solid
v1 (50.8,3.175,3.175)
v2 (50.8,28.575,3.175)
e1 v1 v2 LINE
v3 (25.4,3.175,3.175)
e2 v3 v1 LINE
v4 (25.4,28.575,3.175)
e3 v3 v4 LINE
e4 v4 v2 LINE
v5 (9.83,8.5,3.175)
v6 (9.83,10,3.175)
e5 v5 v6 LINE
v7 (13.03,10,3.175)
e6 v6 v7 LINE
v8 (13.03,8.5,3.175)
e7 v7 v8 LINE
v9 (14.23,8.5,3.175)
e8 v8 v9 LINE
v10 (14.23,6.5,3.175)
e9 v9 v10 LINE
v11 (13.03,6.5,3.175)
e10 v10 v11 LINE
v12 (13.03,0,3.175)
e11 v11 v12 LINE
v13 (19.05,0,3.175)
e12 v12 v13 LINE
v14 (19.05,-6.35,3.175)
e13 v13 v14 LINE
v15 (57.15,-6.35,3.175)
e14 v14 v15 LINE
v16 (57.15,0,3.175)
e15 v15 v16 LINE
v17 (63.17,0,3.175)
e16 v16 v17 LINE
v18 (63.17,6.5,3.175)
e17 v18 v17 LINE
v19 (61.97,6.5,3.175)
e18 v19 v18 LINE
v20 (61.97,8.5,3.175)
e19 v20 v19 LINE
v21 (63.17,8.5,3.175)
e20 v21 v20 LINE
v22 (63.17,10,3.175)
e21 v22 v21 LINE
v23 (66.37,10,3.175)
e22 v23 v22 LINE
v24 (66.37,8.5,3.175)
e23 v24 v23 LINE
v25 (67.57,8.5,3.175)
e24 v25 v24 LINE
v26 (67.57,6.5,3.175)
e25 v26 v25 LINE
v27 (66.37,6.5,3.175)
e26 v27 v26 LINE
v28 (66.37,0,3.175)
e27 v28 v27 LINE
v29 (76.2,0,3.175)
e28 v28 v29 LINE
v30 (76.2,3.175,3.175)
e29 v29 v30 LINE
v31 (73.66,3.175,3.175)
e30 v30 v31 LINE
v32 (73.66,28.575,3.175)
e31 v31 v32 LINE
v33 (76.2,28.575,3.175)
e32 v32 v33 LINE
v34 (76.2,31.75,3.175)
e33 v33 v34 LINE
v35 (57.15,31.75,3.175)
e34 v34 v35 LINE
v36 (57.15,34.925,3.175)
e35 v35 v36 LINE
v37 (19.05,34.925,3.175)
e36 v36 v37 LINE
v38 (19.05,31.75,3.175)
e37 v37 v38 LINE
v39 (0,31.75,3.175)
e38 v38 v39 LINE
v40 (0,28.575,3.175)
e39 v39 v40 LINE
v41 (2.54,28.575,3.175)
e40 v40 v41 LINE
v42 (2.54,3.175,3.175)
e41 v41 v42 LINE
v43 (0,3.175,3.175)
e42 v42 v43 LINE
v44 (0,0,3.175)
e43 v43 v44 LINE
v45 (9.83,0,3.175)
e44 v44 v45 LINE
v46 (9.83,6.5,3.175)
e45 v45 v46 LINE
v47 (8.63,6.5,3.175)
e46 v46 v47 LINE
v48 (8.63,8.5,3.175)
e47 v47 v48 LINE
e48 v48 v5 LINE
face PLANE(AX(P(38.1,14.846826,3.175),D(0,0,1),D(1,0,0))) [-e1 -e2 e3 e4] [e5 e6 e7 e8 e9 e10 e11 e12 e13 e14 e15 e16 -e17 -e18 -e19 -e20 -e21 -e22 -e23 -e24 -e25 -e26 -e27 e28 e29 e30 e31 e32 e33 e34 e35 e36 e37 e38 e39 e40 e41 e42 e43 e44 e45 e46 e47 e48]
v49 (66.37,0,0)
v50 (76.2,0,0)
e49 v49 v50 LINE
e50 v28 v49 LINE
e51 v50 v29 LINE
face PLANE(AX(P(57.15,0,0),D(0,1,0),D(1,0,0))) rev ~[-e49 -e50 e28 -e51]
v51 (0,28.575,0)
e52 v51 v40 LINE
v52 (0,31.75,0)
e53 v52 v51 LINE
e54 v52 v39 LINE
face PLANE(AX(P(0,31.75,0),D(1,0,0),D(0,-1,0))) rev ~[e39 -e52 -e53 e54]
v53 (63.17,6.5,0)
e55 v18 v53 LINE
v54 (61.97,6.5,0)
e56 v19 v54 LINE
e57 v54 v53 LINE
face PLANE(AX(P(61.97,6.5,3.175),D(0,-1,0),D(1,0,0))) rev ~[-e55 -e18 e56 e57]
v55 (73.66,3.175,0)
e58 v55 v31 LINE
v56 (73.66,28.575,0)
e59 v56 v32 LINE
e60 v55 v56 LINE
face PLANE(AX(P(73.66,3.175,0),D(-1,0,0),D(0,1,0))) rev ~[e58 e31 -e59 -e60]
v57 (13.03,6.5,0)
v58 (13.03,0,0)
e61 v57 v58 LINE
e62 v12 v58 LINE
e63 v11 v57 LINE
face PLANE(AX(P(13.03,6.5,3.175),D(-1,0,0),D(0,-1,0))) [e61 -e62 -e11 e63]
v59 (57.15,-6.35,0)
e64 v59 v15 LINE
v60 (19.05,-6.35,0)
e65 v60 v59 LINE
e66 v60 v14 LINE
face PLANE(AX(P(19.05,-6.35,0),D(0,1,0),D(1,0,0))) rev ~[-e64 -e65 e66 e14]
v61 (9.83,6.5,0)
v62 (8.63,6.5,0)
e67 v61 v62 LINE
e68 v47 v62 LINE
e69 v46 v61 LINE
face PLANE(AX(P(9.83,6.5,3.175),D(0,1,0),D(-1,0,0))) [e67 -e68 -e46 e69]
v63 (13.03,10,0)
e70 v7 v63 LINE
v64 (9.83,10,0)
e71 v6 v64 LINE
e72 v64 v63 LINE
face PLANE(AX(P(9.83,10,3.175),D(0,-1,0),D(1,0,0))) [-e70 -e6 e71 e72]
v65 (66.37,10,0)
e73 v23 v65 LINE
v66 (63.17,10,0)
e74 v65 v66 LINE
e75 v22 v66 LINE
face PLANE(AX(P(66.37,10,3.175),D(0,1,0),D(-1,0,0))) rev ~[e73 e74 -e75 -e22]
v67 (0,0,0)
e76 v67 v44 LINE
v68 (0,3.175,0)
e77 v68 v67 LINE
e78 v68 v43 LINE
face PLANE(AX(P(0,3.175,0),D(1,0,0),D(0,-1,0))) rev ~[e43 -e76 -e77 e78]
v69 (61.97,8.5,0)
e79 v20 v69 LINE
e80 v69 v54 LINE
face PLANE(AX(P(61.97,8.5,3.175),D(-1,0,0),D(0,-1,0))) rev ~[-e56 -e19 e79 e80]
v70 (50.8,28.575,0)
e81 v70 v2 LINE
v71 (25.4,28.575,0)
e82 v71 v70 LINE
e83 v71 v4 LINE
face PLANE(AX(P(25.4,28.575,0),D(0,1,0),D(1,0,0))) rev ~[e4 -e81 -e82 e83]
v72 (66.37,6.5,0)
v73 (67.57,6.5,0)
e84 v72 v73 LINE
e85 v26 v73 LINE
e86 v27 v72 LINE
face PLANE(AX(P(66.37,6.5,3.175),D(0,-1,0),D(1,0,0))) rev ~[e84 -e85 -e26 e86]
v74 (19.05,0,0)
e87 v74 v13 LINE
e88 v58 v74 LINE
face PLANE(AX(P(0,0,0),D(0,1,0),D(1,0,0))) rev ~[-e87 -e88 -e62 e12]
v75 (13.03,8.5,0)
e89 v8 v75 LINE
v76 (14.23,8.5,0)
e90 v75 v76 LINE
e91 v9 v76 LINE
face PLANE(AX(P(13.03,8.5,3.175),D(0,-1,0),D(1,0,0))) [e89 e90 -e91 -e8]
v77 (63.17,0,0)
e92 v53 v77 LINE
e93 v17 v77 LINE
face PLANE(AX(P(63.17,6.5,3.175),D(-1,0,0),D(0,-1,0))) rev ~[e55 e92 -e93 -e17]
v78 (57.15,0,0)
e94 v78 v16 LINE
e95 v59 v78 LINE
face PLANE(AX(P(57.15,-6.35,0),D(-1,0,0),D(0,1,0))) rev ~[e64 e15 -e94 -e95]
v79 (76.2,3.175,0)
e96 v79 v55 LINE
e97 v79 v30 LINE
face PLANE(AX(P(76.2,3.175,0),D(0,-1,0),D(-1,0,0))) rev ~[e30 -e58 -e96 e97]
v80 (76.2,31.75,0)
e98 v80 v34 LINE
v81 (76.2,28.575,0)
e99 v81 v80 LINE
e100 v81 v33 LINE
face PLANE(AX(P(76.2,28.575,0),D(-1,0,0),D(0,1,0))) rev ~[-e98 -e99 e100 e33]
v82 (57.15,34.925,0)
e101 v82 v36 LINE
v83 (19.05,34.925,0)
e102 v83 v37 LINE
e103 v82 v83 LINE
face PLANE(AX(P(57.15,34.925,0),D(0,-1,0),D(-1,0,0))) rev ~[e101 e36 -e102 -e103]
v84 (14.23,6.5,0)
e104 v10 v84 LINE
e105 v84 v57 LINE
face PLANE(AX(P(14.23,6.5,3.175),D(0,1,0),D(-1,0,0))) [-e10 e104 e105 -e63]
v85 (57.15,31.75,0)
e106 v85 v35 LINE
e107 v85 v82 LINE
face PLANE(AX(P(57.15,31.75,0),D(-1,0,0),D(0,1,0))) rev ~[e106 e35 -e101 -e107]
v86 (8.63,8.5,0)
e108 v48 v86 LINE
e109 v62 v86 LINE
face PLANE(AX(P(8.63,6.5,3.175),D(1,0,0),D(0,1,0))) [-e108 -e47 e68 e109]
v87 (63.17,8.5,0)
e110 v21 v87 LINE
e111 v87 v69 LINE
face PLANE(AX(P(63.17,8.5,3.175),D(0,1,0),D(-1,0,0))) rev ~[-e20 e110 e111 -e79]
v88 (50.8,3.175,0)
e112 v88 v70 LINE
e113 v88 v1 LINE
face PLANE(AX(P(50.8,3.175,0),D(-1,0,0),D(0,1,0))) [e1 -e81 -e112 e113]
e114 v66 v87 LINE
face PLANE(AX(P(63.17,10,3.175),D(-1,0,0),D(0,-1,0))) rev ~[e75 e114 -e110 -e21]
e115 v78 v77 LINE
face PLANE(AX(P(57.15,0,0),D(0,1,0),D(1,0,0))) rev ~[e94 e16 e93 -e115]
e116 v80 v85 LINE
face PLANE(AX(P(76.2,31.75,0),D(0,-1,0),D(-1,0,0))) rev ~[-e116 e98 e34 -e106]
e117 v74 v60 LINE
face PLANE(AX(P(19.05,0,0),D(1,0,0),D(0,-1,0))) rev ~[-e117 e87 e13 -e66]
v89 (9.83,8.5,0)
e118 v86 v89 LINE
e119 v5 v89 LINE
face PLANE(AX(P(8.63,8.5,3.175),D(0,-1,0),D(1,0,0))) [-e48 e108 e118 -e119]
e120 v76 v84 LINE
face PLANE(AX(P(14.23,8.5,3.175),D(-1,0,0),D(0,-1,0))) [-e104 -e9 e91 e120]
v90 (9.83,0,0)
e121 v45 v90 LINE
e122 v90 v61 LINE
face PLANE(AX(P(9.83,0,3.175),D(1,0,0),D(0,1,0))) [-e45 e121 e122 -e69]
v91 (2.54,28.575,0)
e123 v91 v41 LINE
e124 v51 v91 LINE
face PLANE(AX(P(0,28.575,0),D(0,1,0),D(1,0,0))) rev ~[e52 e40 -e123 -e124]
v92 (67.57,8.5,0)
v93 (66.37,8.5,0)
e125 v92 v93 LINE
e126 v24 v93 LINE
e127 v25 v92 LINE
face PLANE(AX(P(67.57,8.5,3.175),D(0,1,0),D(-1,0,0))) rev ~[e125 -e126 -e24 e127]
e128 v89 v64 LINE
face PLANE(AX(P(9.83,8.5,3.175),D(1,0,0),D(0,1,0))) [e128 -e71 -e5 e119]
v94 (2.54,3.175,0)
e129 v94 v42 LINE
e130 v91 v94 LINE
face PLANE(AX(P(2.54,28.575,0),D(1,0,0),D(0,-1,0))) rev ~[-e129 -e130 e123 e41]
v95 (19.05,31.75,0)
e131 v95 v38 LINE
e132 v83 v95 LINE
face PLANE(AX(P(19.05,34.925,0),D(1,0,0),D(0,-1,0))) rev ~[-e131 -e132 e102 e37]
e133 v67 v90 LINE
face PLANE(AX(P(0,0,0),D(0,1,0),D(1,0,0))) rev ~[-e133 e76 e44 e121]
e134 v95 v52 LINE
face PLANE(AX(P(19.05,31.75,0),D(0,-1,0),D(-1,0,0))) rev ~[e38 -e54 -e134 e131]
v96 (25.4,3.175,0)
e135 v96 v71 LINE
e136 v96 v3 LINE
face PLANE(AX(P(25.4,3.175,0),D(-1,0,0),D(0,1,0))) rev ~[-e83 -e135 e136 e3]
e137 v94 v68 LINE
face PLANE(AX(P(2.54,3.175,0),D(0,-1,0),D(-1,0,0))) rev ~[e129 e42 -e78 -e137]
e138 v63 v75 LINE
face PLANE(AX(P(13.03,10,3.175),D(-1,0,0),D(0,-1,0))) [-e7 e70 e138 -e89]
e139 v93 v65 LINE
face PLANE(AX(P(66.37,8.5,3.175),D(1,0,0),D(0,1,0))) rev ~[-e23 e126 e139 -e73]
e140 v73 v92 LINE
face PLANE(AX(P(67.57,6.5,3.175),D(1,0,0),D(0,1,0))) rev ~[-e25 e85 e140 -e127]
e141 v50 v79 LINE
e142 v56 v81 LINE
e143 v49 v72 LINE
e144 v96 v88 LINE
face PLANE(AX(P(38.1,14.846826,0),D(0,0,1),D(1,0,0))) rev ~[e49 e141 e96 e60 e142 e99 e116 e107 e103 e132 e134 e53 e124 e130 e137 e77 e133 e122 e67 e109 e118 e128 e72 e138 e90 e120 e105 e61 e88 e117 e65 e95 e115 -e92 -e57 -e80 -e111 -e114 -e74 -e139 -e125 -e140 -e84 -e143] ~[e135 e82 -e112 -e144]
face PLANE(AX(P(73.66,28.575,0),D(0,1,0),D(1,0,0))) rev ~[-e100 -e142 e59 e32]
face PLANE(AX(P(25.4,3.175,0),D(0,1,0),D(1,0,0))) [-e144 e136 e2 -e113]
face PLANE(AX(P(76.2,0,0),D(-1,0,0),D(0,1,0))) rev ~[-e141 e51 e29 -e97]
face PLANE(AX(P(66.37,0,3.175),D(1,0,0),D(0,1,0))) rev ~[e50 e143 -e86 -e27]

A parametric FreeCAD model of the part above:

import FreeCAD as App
import Part
import Sketcher
from FreeCAD import Vector
Q = App.Units.Quantity


def add_polygon(sketch, points):
    """Adds a closed chain of lines whose ends are joined by coincident constraints."""
    first, n = sketch.GeometryCount, len(points)
    for a, b in zip(points, points[1:] + points[:1]):
        sketch.addGeometry(Part.LineSegment(App.Vector(*a, 0), App.Vector(*b, 0)), False)
    for i in range(n):
        sketch.addConstraint(Sketcher.Constraint("Coincident", first + i, 2, first + (i + 1) % n, 1))

doc = App.newDocument("Part")
body = doc.addObject("PartDesign::Body", "Body")

sketch1 = doc.addObject("Sketcher::SketchObject", "Sketch")
body.addObject(sketch1)
sketch1.AttachmentSupport = (doc.XY_Plane, [""])
sketch1.MapMode = "FlatFace"
add_polygon(sketch1, [(0, 0), (19.1, 0), (19.1, -6.3), (57.1, -6.3), (57.1, 0), (76.2, 0), (76.2, 3.2), (73.7, 3.2), (73.7, 28.6), (76.2, 28.6), (76.2, 31.8), (57.1, 31.8), (57.1, 34.9), (19.1, 34.9), (19.1, 31.8), (0, 31.8), (0, 28.6), (2.5, 28.6), (2.5, 3.2), (0, 3.2)])
add_polygon(sketch1, [(50.8, 3.2), (25.4, 3.2), (25.4, 28.6), (50.8, 28.6)])
sketch1.addConstraint(Sketcher.Constraint("Horizontal", 0))
sketch1.addConstraint(Sketcher.Constraint("Vertical", 1))
sketch1.addConstraint(Sketcher.Constraint("Horizontal", 2))
sketch1.addConstraint(Sketcher.Constraint("Vertical", 3))
sketch1.addConstraint(Sketcher.Constraint("Horizontal", 4))
sketch1.addConstraint(Sketcher.Constraint("Vertical", 5))
sketch1.addConstraint(Sketcher.Constraint("Horizontal", 6))
sketch1.addConstraint(Sketcher.Constraint("Vertical", 7))
sketch1.addConstraint(Sketcher.Constraint("Horizontal", 8))
sketch1.addConstraint(Sketcher.Constraint("Vertical", 9))
sketch1.addConstraint(Sketcher.Constraint("Horizontal", 10))
sketch1.addConstraint(Sketcher.Constraint("Vertical", 11))
sketch1.addConstraint(Sketcher.Constraint("Horizontal", 12))
sketch1.addConstraint(Sketcher.Constraint("Vertical", 13))
sketch1.addConstraint(Sketcher.Constraint("Horizontal", 14))
sketch1.addConstraint(Sketcher.Constraint("Vertical", 15))
sketch1.addConstraint(Sketcher.Constraint("Horizontal", 16))
sketch1.addConstraint(Sketcher.Constraint("Vertical", 17))
sketch1.addConstraint(Sketcher.Constraint("Horizontal", 18))
sketch1.addConstraint(Sketcher.Constraint("Vertical", 19))
sketch1.addConstraint(Sketcher.Constraint("Horizontal", 20))
sketch1.addConstraint(Sketcher.Constraint("Vertical", 21))
sketch1.addConstraint(Sketcher.Constraint("Horizontal", 22))
sketch1.addConstraint(Sketcher.Constraint("Vertical", 23))
sketch1.addConstraint(Sketcher.Constraint("Coincident", 19, 2, -1, 1))
sketch1.addConstraint(Sketcher.Constraint("PointOnObject", 3, 2, -1))
sketch1.addConstraint(Sketcher.Constraint("PointOnObject", 14, 2, -2))
sketch1.addConstraint(Sketcher.Constraint("Horizontal", 10, 2, 13, 2))
sketch1.addConstraint(Sketcher.Constraint("Horizontal", 8, 2, 15, 2))
sketch1.addConstraint(Sketcher.Constraint("Horizontal", 6, 2, 17, 2))
sketch1.addConstraint(Sketcher.Constraint("Horizontal", 18, 2, 20, 2))
sketch1.addConstraint(Sketcher.Constraint("Horizontal", 16, 2, 21, 2))
sketch1.addConstraint(Sketcher.Constraint("Vertical", 5, 2, 8, 2))
sketch1.addConstraint(Sketcher.Constraint("Vertical", 3, 2, 10, 2))
sketch1.addConstraint(Sketcher.Constraint("Vertical", 1, 2, 12, 2))
sketch1.addConstraint(Sketcher.Constraint("Equal", 0, 4))
sketch1.addConstraint(Sketcher.Constraint("Equal", 8, 16))
sketch1.addConstraint(Sketcher.Constraint("Equal", 22, 7))
sketch1.addConstraint(Sketcher.Constraint("Equal", 5, 9))
sketch1.addConstraint(Sketcher.Constraint("Equal", 9, 11))
sketch1.addConstraint(Sketcher.Constraint("DistanceX", 20, 2, 20, 1, Q("1 in")))
sketch1.addConstraint(Sketcher.Constraint("DistanceX", 2, 1, 2, 2, Q("1.5 in")))
sketch1.addConstraint(Sketcher.Constraint("DistanceX", 6, 2, 6, 1, Q("0.1 in")))
sketch1.addConstraint(Sketcher.Constraint("DistanceX", -1, 1, 4, 2, Q("3 in")))
sketch1.addConstraint(Sketcher.Constraint("DistanceX", -1, 1, 20, 2, Q("1 in")))
sketch1.addConstraint(Sketcher.Constraint("DistanceY", 1, 2, 1, 1, Q("0.25 in")))
sketch1.addConstraint(Sketcher.Constraint("DistanceY", 1, 2, 13, 2, Q("1.5 in")))
pad1 = doc.addObject("PartDesign::Pad", "Pad")
body.addObject(pad1)
pad1.Profile = sketch1
pad1.Length = Q("0.125 in")

sketch2 = doc.addObject("Sketcher::SketchObject", "Sketch001")
body.addObject(sketch2)
sketch2.AttachmentSupport = (doc.XY_Plane, [""])
sketch2.MapMode = "FlatFace"
sketch2.AttachmentOffset = App.Placement(Vector(0, 0, 0.125 * 25.4), App.Rotation())
add_polygon(sketch2, [(9.8, 0), (13, 0), (13, 6.5), (14.2, 6.5), (14.2, 8.5), (13, 8.5), (13, 10), (9.8, 10), (9.8, 8.5), (8.6, 8.5), (8.6, 6.5), (9.8, 6.5)])
add_polygon(sketch2, [(66.4, 8.5), (66.4, 10), (63.2, 10), (63.2, 8.5), (62, 8.5), (62, 6.5), (63.2, 6.5), (63.2, 0), (66.4, 0), (66.4, 6.5), (67.6, 6.5), (67.6, 8.5)])
sketch2.addConstraint(Sketcher.Constraint("Horizontal", 0))
sketch2.addConstraint(Sketcher.Constraint("Vertical", 1))
sketch2.addConstraint(Sketcher.Constraint("Horizontal", 2))
sketch2.addConstraint(Sketcher.Constraint("Vertical", 3))
sketch2.addConstraint(Sketcher.Constraint("Horizontal", 4))
sketch2.addConstraint(Sketcher.Constraint("Vertical", 5))
sketch2.addConstraint(Sketcher.Constraint("Horizontal", 6))
sketch2.addConstraint(Sketcher.Constraint("Vertical", 7))
sketch2.addConstraint(Sketcher.Constraint("Horizontal", 8))
sketch2.addConstraint(Sketcher.Constraint("Vertical", 9))
sketch2.addConstraint(Sketcher.Constraint("Horizontal", 10))
sketch2.addConstraint(Sketcher.Constraint("Vertical", 11))
sketch2.addConstraint(Sketcher.Constraint("Vertical", 12))
sketch2.addConstraint(Sketcher.Constraint("Horizontal", 13))
sketch2.addConstraint(Sketcher.Constraint("Vertical", 14))
sketch2.addConstraint(Sketcher.Constraint("Horizontal", 15))
sketch2.addConstraint(Sketcher.Constraint("Vertical", 16))
sketch2.addConstraint(Sketcher.Constraint("Horizontal", 17))
sketch2.addConstraint(Sketcher.Constraint("Vertical", 18))
sketch2.addConstraint(Sketcher.Constraint("Horizontal", 19))
sketch2.addConstraint(Sketcher.Constraint("Vertical", 20))
sketch2.addConstraint(Sketcher.Constraint("Horizontal", 21))
sketch2.addConstraint(Sketcher.Constraint("Vertical", 22))
sketch2.addConstraint(Sketcher.Constraint("Horizontal", 23))
sketch2.addConstraint(Sketcher.Constraint("PointOnObject", 0, 2, -1))
sketch2.addConstraint(Sketcher.Constraint("PointOnObject", 18, 2, -1))
sketch2.addConstraint(Sketcher.Constraint("Horizontal", 4, 2, 7, 2))
sketch2.addConstraint(Sketcher.Constraint("Horizontal", 2, 2, 9, 2))
sketch2.addConstraint(Sketcher.Constraint("Horizontal", 6, 2, 12, 2))
sketch2.addConstraint(Sketcher.Constraint("Horizontal", 8, 2, 14, 2))
sketch2.addConstraint(Sketcher.Constraint("Horizontal", 10, 2, 16, 2))
sketch2.addConstraint(Sketcher.Constraint("Horizontal", 17, 2, 20, 2))
sketch2.addConstraint(Sketcher.Constraint("Horizontal", 15, 2, 22, 2))
sketch2.addConstraint(Sketcher.Constraint("Vertical", 1, 2, 4, 2))
sketch2.addConstraint(Sketcher.Constraint("Vertical", 7, 2, 10, 2))
sketch2.addConstraint(Sketcher.Constraint("Vertical", 14, 2, 17, 2))
sketch2.addConstraint(Sketcher.Constraint("Vertical", 12, 2, 19, 2))
sketch2.addConstraint(Sketcher.Constraint("Equal", 4, 8))
sketch2.addConstraint(Sketcher.Constraint("Equal", 6, 13))
sketch2.addConstraint(Sketcher.Constraint("Equal", 10, 15))
sketch2.addConstraint(Sketcher.Constraint("Equal", 17, 21))
sketch2.addConstraint(Sketcher.Constraint("DistanceX", 5, 2, 12, 2, Q("2.1 in")))
sketch2.addConstraint(Sketcher.Constraint("DistanceX", 0, 1, 0, 2, Q("3.2 mm")))
sketch2.addConstraint(Sketcher.Constraint("DistanceX", 2, 1, 2, 2, Q("1.2 mm")))
sketch2.addConstraint(Sketcher.Constraint("DistanceY", 1, 1, 1, 2, Q("6.5 mm")))
sketch2.addConstraint(Sketcher.Constraint("DistanceY", 3, 1, 3, 2, Q("2 mm")))
sketch2.addConstraint(Sketcher.Constraint("DistanceY", 5, 1, 5, 2, Q("1.5 mm")))
sketch2.addConstraint(Sketcher.Constraint("DistanceX", -1, 1, 0, 2, Q("13.03 mm")))
pocket1 = doc.addObject("PartDesign::Pocket", "Pocket")
body.addObject(pocket1)
pocket1.Profile = sketch2
pocket1.Type = "ThroughAll"

doc.recompute()
